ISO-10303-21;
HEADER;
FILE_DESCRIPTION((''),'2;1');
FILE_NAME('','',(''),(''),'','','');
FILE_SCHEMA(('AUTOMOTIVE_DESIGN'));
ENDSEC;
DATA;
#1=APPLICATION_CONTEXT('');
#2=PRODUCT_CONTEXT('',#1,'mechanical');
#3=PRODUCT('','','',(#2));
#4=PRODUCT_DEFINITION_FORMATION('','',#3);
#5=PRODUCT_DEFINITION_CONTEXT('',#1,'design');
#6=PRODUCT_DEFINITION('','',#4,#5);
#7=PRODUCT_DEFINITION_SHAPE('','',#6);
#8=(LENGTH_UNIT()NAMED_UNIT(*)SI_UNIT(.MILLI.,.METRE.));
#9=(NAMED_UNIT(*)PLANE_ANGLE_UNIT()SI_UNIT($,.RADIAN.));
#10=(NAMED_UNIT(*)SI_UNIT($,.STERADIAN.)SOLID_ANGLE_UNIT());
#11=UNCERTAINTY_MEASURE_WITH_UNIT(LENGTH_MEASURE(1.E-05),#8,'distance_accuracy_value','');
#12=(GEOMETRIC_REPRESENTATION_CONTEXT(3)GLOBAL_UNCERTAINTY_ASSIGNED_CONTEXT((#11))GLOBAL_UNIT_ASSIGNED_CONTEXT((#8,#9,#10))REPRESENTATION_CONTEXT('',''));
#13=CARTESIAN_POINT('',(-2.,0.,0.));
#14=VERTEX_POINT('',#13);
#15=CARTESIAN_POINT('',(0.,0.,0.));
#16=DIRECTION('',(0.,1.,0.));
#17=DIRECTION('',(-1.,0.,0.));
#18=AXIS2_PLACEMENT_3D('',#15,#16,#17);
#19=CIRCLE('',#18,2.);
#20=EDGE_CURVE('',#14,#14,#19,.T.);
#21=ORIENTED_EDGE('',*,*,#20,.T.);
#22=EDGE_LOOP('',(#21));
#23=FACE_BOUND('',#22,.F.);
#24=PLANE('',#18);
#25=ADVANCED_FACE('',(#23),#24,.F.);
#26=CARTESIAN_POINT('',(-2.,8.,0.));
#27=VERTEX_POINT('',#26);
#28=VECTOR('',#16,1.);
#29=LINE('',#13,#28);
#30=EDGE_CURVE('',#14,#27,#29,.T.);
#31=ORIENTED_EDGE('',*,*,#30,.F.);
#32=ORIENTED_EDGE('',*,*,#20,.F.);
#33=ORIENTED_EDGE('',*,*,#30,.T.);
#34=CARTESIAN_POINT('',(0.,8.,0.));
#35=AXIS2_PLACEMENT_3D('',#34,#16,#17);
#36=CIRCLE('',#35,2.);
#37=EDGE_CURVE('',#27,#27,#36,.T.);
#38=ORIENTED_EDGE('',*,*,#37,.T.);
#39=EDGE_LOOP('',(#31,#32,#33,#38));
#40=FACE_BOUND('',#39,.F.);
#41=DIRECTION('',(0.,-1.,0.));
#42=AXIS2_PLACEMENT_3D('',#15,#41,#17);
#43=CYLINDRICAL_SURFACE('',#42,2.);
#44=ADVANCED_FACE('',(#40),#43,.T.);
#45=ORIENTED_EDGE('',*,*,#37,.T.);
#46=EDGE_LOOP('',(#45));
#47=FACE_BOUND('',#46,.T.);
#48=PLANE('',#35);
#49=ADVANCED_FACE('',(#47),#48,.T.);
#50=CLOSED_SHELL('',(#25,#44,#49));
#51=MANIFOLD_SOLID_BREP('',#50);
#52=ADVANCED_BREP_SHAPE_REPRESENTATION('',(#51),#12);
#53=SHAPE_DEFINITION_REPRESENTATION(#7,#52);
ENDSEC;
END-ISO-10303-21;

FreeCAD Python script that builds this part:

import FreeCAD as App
import Part
import Sketcher
from FreeCAD import Vector
Q = App.Units.Quantity

doc = App.newDocument("Part")
params = doc.addObject("Spreadsheet::Sheet", "Params")
for row, (alias, value) in enumerate([
    ("sketch1_diameter", "4 mm"),
    ("pad1_length", "8 mm"),
], start=1):
    params.set(f"A{row}", alias)
    params.set(f"B{row}", "=" + value)
    params.setAlias(f"B{row}", alias)

body = doc.addObject("PartDesign::Body", "Body")

sketch1 = body.newObject("Sketcher::SketchObject", "Sketch")
sketch1.AttachmentSupport = (doc.getObject("XZ_Plane"), [""])
sketch1.MapMode = "FlatFace"
sketch1.addGeometry(Part.Circle(Vector(0, 0, 0), Vector(0, 0, 1), 2), False)
sketch1.addConstraint(Sketcher.Constraint("Coincident", 0, 3, -1, 1))
sketch1.addConstraint(Sketcher.Constraint("Diameter", 0, Q("4 mm")))
sketch1.setExpression("Constraints[1]", "Params.sketch1_diameter")
pad1 = body.newObject("PartDesign::Pad", "Pad")
pad1.Profile = sketch1
pad1.setExpression("Length", "Params.pad1_length")
pad1.Reversed = True

doc.recompute()
